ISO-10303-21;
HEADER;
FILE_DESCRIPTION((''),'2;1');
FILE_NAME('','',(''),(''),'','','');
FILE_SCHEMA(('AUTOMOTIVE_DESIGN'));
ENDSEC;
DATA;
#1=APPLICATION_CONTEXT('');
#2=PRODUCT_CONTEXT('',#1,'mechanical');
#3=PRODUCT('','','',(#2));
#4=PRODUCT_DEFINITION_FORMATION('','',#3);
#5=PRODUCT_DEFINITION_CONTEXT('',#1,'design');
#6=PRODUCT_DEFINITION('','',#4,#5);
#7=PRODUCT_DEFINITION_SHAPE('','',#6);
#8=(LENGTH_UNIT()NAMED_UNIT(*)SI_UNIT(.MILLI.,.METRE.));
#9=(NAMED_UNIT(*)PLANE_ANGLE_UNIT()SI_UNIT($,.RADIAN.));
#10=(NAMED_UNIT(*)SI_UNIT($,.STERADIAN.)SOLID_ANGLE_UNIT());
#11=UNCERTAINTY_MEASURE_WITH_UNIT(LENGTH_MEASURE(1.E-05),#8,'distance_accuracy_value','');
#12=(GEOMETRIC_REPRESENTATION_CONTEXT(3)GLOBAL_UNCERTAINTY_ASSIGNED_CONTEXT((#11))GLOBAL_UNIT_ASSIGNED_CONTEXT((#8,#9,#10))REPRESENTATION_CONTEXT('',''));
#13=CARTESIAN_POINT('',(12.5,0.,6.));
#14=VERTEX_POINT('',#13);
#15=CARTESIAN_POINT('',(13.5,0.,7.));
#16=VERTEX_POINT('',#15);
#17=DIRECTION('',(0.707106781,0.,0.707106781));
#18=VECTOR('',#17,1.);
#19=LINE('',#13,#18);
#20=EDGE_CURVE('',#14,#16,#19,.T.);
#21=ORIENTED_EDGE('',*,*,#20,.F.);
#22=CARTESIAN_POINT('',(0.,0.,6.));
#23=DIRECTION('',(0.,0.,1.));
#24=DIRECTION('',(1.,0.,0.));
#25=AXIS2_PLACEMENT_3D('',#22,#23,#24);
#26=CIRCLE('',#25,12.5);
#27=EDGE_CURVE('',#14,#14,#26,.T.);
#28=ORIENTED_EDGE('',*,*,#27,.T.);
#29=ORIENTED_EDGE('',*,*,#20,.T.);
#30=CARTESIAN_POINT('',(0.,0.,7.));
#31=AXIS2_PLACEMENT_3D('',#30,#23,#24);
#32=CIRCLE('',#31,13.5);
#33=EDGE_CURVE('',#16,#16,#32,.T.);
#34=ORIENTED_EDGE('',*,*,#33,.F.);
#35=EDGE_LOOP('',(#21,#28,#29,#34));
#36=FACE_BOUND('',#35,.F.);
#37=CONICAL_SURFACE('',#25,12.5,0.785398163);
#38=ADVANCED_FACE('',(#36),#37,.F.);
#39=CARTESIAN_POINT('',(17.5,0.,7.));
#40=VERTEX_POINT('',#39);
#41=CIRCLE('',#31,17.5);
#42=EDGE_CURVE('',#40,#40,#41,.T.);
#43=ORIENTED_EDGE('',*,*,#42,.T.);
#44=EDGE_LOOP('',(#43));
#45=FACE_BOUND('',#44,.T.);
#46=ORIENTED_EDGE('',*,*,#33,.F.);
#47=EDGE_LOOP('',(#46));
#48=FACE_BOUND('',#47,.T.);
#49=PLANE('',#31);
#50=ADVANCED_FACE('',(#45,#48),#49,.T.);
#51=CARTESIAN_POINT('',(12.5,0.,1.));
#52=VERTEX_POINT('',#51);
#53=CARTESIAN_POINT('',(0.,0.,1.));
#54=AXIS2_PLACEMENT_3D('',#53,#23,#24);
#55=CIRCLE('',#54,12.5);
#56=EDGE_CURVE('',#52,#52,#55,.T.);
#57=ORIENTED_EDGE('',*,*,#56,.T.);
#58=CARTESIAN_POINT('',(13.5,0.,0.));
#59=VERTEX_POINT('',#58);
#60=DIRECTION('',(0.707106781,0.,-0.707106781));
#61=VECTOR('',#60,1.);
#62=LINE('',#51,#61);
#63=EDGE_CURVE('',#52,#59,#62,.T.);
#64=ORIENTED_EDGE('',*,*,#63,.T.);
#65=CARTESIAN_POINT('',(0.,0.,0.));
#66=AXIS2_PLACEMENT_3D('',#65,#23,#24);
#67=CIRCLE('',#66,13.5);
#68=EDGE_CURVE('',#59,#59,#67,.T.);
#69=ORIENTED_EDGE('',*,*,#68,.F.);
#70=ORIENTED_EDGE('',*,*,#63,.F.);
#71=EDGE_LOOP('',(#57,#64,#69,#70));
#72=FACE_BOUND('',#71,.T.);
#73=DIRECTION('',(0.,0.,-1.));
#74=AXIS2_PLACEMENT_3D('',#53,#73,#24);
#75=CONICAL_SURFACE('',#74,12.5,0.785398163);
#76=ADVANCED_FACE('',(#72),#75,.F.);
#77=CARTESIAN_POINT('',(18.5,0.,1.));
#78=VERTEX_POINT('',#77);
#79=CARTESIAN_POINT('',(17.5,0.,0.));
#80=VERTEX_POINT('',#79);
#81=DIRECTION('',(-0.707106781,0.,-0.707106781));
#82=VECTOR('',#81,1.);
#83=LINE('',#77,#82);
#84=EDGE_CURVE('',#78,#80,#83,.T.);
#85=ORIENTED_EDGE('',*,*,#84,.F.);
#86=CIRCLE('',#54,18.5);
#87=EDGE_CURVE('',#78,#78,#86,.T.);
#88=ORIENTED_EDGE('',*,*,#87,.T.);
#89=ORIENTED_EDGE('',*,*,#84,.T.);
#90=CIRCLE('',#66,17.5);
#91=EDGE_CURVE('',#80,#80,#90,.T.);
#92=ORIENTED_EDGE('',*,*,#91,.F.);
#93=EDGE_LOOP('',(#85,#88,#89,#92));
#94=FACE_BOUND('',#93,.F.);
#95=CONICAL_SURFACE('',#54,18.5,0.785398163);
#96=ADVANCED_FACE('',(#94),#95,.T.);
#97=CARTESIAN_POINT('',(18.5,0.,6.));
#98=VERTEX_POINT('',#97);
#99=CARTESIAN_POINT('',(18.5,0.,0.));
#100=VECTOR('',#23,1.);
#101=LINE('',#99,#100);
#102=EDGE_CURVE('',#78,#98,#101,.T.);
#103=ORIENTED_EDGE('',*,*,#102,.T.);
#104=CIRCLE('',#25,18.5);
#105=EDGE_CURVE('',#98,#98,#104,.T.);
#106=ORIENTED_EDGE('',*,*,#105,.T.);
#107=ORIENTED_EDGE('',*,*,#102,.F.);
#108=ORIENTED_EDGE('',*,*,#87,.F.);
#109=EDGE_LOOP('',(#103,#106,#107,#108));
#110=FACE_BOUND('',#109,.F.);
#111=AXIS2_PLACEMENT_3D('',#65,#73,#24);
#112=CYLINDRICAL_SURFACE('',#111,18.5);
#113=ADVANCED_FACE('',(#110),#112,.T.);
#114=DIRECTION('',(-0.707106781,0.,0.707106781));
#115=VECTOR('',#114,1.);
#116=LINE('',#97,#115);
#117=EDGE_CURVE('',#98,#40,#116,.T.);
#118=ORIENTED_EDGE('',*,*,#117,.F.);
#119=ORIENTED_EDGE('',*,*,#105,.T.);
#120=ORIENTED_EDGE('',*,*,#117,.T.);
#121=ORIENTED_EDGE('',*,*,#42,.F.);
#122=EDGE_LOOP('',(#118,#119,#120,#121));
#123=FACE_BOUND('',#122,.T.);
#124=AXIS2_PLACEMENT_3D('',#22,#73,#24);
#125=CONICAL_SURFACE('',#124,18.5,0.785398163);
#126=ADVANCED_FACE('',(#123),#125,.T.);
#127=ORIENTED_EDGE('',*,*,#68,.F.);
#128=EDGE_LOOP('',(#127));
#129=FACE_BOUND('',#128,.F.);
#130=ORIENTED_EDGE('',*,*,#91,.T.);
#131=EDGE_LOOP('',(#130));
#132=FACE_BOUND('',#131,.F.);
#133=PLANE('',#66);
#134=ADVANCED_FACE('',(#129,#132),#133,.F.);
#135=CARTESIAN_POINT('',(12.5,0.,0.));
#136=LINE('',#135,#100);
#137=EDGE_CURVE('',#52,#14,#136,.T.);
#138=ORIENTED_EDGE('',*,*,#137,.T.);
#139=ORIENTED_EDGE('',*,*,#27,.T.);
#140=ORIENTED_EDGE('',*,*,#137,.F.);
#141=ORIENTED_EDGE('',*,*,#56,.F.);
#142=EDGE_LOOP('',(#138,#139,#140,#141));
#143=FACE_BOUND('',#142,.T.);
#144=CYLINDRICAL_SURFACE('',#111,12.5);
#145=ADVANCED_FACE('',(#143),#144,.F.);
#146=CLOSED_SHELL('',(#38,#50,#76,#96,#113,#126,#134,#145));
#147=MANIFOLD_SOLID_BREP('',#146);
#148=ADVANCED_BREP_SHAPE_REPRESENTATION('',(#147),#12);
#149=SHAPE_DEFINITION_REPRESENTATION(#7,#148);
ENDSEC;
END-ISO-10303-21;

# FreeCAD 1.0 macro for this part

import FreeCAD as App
import Part
import Sketcher
from FreeCAD import Vector
Q = App.Units.Quantity


def edges_at(feature, points):
    """Names of the edges that pass closest to the given points."""
    edges = feature.Shape.Edges
    near = lambda p: min(range(len(edges)), key=lambda i: edges[i].distToShape(Part.Vertex(*p))[0])
    return sorted({f"Edge{near(p) + 1}" for p in points})

doc = App.newDocument("Part")
params = doc.addObject("Spreadsheet::Sheet", "Params")
for row, (alias, value) in enumerate([
    ("sketch1_diameter", "37 mm"),
    ("sketch1_diameter2", "25 mm"),
    ("pad1_length", "7 mm"),
    ("chamfer_size", "1 mm"),
], start=1):
    params.set(f"A{row}", alias)
    params.set(f"B{row}", "=" + value)
    params.setAlias(f"B{row}", alias)

body = doc.addObject("PartDesign::Body", "Body")

# Sketch on XY plane
sketch1 = doc.addObject("Sketcher::SketchObject", "Sketch")
body.addObject(sketch1)
sketch1.AttachmentSupport = (doc.XY_Plane, [""])
sketch1.MapMode = "FlatFace"
sketch1.addGeometry([
    Part.Circle(Vector(0, 0, 0), Vector(0, 0, 1), 18.5),
    Part.Circle(Vector(0, 0, 0), Vector(0, 0, 1), 12.5),
], False)
sketch1.addConstraint([
    Sketcher.Constraint("Coincident", 0, 3, -1, 1),
    Sketcher.Constraint("Coincident", 1, 3, -1, 1),
    Sketcher.Constraint("Diameter", 0, Q("37 mm")),
    Sketcher.Constraint("Diameter", 1, Q("25 mm")),
])
sketch1.setExpression("Constraints[2]", "Params.sketch1_diameter")
sketch1.setExpression("Constraints[3]", "Params.sketch1_diameter2")
pad1 = doc.addObject("PartDesign::Pad", "Pad")
body.addObject(pad1)
pad1.Profile = sketch1
pad1.setExpression("Length", "Params.pad1_length")
doc.recompute()

chamfer = doc.addObject("PartDesign::Chamfer", "Chamfer")
body.addObject(chamfer)
chamfer.Base = (pad1, edges_at(pad1, [
    (-18.5, 0, 7),
    (-12.5, 0, 7),
    (-12.5, 0, 0),
    (-18.5, 0, 0),
]))
chamfer.setExpression("Size", "Params.chamfer_size")

doc.recompute()
